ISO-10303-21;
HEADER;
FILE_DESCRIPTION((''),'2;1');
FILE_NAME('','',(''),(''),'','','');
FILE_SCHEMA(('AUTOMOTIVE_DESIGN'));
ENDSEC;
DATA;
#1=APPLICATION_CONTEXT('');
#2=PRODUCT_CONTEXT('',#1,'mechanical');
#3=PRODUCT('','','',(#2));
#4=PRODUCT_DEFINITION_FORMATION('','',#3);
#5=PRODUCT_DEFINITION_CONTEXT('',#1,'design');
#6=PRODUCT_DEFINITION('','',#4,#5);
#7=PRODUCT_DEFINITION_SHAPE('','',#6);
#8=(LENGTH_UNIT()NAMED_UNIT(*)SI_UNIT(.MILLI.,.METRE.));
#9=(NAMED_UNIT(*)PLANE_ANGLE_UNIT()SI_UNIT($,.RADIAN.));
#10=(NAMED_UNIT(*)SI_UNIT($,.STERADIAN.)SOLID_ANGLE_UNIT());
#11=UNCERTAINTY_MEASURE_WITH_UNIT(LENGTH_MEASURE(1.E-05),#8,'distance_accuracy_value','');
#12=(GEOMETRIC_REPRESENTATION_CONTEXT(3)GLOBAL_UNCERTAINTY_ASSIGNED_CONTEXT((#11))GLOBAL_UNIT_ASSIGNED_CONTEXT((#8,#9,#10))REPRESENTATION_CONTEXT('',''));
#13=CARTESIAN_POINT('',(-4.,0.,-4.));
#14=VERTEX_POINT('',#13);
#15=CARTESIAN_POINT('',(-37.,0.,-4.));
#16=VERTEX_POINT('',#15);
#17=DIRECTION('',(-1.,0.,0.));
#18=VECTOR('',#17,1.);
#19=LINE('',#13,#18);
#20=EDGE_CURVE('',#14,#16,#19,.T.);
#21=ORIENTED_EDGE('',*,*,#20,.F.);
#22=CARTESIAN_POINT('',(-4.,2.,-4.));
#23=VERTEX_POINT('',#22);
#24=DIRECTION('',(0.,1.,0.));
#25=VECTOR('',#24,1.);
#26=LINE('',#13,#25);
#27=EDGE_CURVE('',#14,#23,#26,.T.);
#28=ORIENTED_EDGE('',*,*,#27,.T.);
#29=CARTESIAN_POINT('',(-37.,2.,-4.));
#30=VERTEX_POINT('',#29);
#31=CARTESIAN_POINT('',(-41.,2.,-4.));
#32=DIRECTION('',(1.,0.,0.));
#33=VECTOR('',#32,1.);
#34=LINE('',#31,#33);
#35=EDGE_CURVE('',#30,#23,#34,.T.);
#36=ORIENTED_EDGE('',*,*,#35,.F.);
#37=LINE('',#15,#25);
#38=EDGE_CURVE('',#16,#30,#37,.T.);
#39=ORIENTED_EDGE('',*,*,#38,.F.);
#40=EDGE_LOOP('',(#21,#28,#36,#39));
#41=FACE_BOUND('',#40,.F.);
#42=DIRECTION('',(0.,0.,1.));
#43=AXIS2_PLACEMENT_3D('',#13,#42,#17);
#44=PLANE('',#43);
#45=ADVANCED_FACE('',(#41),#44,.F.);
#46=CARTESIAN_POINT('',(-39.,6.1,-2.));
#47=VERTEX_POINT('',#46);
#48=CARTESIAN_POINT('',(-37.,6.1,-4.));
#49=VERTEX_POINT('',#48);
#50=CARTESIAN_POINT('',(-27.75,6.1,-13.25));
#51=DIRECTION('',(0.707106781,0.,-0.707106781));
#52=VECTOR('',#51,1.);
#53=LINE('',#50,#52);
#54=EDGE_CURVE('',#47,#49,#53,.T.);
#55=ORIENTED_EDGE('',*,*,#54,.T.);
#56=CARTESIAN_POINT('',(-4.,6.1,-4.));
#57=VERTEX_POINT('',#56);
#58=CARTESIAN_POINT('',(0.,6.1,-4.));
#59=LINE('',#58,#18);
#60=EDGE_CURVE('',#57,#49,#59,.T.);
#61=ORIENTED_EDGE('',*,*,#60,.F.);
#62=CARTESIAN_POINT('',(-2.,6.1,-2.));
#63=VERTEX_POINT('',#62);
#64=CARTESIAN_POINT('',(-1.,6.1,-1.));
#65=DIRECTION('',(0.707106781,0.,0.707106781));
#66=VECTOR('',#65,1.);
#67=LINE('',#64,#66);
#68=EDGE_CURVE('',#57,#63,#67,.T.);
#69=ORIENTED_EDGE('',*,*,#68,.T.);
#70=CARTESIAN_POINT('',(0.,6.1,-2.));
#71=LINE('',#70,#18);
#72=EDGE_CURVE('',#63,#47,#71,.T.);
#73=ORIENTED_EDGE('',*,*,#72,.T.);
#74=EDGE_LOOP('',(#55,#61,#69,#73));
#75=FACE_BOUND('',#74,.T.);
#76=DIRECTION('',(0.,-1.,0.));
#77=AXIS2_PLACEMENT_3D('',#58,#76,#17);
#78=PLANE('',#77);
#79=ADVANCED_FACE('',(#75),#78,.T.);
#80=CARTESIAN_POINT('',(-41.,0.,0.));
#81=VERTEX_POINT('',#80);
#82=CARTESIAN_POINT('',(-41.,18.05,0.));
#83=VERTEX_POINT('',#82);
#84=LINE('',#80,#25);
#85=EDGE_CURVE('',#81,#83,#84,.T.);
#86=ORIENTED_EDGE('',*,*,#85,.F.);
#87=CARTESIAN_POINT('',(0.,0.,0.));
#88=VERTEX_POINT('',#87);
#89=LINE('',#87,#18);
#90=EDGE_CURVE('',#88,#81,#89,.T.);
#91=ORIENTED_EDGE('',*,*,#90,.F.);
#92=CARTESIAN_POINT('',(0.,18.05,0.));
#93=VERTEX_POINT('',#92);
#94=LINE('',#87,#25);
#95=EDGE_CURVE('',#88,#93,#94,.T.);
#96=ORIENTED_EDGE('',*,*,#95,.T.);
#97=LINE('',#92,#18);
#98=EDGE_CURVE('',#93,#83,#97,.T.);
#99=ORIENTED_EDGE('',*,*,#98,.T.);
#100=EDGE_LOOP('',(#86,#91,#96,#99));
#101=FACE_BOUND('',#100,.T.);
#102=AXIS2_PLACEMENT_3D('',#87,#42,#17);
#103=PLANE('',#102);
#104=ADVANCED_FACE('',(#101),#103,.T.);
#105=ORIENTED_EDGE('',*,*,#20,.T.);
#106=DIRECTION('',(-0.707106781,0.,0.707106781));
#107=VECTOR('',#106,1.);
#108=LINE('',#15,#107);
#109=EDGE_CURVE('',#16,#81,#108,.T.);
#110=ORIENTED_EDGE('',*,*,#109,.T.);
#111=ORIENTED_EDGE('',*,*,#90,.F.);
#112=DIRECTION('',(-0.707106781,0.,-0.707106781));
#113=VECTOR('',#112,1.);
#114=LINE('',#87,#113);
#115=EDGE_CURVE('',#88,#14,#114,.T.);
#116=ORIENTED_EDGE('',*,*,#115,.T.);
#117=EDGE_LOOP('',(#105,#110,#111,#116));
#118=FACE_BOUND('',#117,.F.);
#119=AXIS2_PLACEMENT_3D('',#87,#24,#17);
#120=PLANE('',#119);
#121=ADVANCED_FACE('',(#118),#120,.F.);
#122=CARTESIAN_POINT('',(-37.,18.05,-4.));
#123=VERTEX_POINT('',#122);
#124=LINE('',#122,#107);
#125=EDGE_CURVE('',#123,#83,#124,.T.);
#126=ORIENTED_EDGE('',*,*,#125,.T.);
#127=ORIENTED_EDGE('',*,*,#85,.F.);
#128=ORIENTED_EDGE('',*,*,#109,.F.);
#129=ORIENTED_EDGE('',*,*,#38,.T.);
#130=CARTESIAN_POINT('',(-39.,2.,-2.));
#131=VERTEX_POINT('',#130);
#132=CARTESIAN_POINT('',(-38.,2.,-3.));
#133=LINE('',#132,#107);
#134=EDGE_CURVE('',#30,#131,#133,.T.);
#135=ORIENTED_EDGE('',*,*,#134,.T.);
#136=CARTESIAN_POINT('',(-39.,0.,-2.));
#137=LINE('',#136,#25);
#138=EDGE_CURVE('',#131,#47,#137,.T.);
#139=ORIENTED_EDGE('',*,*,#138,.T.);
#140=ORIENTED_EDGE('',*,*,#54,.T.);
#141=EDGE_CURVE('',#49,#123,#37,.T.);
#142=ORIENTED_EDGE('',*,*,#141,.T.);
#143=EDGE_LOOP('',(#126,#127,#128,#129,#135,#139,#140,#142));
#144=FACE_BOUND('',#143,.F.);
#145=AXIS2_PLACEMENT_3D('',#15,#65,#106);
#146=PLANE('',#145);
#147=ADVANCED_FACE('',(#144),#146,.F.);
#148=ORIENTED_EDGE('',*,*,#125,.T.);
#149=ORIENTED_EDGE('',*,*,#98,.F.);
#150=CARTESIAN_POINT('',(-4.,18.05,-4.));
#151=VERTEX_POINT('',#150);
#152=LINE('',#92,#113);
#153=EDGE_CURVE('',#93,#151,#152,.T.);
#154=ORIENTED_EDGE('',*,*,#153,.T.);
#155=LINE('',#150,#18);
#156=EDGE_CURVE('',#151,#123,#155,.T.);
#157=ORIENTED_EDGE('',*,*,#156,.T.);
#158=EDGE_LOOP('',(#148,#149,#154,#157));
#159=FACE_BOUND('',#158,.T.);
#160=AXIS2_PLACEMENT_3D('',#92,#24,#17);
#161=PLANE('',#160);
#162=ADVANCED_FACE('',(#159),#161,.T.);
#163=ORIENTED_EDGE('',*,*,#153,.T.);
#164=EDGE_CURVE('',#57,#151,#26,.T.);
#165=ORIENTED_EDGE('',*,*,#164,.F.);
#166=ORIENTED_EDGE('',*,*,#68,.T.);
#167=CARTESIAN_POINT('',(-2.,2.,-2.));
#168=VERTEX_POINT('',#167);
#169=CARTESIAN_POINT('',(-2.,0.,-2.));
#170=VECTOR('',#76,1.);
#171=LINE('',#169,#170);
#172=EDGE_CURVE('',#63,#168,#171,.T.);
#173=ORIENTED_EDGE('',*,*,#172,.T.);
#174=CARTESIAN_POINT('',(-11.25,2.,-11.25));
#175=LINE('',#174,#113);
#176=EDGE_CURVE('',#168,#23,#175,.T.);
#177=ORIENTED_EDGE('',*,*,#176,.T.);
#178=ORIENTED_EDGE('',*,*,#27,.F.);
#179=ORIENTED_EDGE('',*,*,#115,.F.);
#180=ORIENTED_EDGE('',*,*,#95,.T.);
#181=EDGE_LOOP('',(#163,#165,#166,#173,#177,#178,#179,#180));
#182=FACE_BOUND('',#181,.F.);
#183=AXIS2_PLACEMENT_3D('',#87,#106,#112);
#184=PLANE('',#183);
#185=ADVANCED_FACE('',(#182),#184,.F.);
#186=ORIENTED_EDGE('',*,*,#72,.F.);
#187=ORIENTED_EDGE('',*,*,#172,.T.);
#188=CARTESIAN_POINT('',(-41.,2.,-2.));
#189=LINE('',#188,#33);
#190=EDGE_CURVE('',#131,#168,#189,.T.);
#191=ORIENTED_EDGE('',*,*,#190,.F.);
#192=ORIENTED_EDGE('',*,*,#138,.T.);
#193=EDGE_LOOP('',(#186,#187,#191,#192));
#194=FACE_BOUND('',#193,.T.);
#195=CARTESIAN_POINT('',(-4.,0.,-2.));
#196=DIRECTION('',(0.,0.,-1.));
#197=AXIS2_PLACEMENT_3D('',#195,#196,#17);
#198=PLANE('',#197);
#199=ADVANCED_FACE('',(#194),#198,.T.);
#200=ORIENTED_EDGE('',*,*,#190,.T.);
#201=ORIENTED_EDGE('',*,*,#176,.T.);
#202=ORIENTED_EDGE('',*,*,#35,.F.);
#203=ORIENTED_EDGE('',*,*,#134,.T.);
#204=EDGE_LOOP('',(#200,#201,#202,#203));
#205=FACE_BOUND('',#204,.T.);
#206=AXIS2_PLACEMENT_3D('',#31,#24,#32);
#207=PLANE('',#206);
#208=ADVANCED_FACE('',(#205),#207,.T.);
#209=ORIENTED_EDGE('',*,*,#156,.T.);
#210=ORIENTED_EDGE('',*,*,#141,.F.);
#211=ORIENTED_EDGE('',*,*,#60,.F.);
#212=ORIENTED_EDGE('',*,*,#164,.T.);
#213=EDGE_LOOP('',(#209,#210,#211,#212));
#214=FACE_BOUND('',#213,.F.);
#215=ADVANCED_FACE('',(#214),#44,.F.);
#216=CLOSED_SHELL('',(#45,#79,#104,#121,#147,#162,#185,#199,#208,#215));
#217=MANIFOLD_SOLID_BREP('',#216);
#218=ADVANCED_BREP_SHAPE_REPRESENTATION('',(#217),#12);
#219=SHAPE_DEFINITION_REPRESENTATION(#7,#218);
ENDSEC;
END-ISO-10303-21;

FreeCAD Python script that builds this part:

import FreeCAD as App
import Part
import Sketcher

V = App.Vector
Q = App.Units.Quantity

doc = App.newDocument("Part")
body = doc.addObject("PartDesign::Body", "Body")

sketch1 = body.newObject("Sketcher::SketchObject", "Sketch")
sketch1.AttachmentSupport = (doc.getObject("XZ_Plane"), [""])
sketch1.MapMode = "FlatFace"
sketch1.addGeometry(Part.LineSegment(V(-41, 0, 0), V(0, 0, 0)), False)
sketch1.addGeometry(Part.LineSegment(V(0, 0, 0), V(-4, -4, 0)), False)
sketch1.addGeometry(Part.LineSegment(V(-4, -4, 0), V(-37, -4, 0)), False)
sketch1.addGeometry(Part.LineSegment(V(-37, -4, 0), V(-41, 0, 0)), False)
sketch1.addConstraint(Sketcher.Constraint("Coincident", 0, 2, 1, 1))
sketch1.addConstraint(Sketcher.Constraint("Coincident", 1, 2, 2, 1))
sketch1.addConstraint(Sketcher.Constraint("Coincident", 2, 2, 3, 1))
sketch1.addConstraint(Sketcher.Constraint("Coincident", 3, 2, 0, 1))
sketch1.addConstraint(Sketcher.Constraint("Horizontal", 0))
sketch1.addConstraint(Sketcher.Constraint("Horizontal", 2))
sketch1.addConstraint(Sketcher.Constraint("Coincident", 0, 2, -1, 1))
sketch1.addConstraint(Sketcher.Constraint("Perpendicular", 1, 3))
sketch1.addConstraint(Sketcher.Constraint("Equal", 1, 3))
sketch1.addConstraint(Sketcher.Constraint("DistanceX", 0, 1, 0, 2, Q("41 mm")))
sketch1.addConstraint(Sketcher.Constraint("DistanceX", 2, 2, 2, 1, Q("33 mm")))
pad1 = body.newObject("PartDesign::Pad", "Pad")
pad1.Profile = sketch1
pad1.Length = 18.05
pad1.Reversed = True

sketch2 = body.newObject("Sketcher::SketchObject", "Sketch001")
sketch2.AttachmentSupport = (doc.getObject("XY_Plane"), [""])
sketch2.MapMode = "FlatFace"
sketch2.AttachmentOffset = App.Placement(V(0, 0, -4), App.Rotation())
sketch2.addGeometry(Part.LineSegment(V(0, 6.1, 0), V(0, 2, 0)), False)
sketch2.addGeometry(Part.LineSegment(V(0, 2, 0), V(-41, 2, 0)), False)
sketch2.addGeometry(Part.LineSegment(V(-41, 2, 0), V(-41, 6.1, 0)), False)
sketch2.addGeometry(Part.LineSegment(V(-41, 6.1, 0), V(0, 6.1, 0)), False)
sketch2.addConstraint(Sketcher.Constraint("Coincident", 0, 2, 1, 1))
sketch2.addConstraint(Sketcher.Constraint("Coincident", 1, 2, 2, 1))
sketch2.addConstraint(Sketcher.Constraint("Coincident", 2, 2, 3, 1))
sketch2.addConstraint(Sketcher.Constraint("Coincident", 3, 2, 0, 1))
sketch2.addConstraint(Sketcher.Constraint("Vertical", 0))
sketch2.addConstraint(Sketcher.Constraint("Horizontal", 1))
sketch2.addConstraint(Sketcher.Constraint("Vertical", 2))
sketch2.addConstraint(Sketcher.Constraint("Horizontal", 3))
sketch2.addConstraint(Sketcher.Constraint("PointOnObject", 0, 2, -2))
sketch2.addConstraint(Sketcher.Constraint("DistanceY", 0, 2, 0, 1, Q("4.1 mm")))
sketch2.addConstraint(Sketcher.Constraint("DistanceY", -1, 1, 0, 2, Q("2 mm")))
sketch2.addConstraint(Sketcher.Constraint("DistanceX", 1, 2, 1, 1, Q("41 mm")))
pocket1 = body.newObject("PartDesign::Pocket", "Pocket")
pocket1.Profile = sketch2
pocket1.Length = 2
pocket1.Reversed = True

doc.recompute()
